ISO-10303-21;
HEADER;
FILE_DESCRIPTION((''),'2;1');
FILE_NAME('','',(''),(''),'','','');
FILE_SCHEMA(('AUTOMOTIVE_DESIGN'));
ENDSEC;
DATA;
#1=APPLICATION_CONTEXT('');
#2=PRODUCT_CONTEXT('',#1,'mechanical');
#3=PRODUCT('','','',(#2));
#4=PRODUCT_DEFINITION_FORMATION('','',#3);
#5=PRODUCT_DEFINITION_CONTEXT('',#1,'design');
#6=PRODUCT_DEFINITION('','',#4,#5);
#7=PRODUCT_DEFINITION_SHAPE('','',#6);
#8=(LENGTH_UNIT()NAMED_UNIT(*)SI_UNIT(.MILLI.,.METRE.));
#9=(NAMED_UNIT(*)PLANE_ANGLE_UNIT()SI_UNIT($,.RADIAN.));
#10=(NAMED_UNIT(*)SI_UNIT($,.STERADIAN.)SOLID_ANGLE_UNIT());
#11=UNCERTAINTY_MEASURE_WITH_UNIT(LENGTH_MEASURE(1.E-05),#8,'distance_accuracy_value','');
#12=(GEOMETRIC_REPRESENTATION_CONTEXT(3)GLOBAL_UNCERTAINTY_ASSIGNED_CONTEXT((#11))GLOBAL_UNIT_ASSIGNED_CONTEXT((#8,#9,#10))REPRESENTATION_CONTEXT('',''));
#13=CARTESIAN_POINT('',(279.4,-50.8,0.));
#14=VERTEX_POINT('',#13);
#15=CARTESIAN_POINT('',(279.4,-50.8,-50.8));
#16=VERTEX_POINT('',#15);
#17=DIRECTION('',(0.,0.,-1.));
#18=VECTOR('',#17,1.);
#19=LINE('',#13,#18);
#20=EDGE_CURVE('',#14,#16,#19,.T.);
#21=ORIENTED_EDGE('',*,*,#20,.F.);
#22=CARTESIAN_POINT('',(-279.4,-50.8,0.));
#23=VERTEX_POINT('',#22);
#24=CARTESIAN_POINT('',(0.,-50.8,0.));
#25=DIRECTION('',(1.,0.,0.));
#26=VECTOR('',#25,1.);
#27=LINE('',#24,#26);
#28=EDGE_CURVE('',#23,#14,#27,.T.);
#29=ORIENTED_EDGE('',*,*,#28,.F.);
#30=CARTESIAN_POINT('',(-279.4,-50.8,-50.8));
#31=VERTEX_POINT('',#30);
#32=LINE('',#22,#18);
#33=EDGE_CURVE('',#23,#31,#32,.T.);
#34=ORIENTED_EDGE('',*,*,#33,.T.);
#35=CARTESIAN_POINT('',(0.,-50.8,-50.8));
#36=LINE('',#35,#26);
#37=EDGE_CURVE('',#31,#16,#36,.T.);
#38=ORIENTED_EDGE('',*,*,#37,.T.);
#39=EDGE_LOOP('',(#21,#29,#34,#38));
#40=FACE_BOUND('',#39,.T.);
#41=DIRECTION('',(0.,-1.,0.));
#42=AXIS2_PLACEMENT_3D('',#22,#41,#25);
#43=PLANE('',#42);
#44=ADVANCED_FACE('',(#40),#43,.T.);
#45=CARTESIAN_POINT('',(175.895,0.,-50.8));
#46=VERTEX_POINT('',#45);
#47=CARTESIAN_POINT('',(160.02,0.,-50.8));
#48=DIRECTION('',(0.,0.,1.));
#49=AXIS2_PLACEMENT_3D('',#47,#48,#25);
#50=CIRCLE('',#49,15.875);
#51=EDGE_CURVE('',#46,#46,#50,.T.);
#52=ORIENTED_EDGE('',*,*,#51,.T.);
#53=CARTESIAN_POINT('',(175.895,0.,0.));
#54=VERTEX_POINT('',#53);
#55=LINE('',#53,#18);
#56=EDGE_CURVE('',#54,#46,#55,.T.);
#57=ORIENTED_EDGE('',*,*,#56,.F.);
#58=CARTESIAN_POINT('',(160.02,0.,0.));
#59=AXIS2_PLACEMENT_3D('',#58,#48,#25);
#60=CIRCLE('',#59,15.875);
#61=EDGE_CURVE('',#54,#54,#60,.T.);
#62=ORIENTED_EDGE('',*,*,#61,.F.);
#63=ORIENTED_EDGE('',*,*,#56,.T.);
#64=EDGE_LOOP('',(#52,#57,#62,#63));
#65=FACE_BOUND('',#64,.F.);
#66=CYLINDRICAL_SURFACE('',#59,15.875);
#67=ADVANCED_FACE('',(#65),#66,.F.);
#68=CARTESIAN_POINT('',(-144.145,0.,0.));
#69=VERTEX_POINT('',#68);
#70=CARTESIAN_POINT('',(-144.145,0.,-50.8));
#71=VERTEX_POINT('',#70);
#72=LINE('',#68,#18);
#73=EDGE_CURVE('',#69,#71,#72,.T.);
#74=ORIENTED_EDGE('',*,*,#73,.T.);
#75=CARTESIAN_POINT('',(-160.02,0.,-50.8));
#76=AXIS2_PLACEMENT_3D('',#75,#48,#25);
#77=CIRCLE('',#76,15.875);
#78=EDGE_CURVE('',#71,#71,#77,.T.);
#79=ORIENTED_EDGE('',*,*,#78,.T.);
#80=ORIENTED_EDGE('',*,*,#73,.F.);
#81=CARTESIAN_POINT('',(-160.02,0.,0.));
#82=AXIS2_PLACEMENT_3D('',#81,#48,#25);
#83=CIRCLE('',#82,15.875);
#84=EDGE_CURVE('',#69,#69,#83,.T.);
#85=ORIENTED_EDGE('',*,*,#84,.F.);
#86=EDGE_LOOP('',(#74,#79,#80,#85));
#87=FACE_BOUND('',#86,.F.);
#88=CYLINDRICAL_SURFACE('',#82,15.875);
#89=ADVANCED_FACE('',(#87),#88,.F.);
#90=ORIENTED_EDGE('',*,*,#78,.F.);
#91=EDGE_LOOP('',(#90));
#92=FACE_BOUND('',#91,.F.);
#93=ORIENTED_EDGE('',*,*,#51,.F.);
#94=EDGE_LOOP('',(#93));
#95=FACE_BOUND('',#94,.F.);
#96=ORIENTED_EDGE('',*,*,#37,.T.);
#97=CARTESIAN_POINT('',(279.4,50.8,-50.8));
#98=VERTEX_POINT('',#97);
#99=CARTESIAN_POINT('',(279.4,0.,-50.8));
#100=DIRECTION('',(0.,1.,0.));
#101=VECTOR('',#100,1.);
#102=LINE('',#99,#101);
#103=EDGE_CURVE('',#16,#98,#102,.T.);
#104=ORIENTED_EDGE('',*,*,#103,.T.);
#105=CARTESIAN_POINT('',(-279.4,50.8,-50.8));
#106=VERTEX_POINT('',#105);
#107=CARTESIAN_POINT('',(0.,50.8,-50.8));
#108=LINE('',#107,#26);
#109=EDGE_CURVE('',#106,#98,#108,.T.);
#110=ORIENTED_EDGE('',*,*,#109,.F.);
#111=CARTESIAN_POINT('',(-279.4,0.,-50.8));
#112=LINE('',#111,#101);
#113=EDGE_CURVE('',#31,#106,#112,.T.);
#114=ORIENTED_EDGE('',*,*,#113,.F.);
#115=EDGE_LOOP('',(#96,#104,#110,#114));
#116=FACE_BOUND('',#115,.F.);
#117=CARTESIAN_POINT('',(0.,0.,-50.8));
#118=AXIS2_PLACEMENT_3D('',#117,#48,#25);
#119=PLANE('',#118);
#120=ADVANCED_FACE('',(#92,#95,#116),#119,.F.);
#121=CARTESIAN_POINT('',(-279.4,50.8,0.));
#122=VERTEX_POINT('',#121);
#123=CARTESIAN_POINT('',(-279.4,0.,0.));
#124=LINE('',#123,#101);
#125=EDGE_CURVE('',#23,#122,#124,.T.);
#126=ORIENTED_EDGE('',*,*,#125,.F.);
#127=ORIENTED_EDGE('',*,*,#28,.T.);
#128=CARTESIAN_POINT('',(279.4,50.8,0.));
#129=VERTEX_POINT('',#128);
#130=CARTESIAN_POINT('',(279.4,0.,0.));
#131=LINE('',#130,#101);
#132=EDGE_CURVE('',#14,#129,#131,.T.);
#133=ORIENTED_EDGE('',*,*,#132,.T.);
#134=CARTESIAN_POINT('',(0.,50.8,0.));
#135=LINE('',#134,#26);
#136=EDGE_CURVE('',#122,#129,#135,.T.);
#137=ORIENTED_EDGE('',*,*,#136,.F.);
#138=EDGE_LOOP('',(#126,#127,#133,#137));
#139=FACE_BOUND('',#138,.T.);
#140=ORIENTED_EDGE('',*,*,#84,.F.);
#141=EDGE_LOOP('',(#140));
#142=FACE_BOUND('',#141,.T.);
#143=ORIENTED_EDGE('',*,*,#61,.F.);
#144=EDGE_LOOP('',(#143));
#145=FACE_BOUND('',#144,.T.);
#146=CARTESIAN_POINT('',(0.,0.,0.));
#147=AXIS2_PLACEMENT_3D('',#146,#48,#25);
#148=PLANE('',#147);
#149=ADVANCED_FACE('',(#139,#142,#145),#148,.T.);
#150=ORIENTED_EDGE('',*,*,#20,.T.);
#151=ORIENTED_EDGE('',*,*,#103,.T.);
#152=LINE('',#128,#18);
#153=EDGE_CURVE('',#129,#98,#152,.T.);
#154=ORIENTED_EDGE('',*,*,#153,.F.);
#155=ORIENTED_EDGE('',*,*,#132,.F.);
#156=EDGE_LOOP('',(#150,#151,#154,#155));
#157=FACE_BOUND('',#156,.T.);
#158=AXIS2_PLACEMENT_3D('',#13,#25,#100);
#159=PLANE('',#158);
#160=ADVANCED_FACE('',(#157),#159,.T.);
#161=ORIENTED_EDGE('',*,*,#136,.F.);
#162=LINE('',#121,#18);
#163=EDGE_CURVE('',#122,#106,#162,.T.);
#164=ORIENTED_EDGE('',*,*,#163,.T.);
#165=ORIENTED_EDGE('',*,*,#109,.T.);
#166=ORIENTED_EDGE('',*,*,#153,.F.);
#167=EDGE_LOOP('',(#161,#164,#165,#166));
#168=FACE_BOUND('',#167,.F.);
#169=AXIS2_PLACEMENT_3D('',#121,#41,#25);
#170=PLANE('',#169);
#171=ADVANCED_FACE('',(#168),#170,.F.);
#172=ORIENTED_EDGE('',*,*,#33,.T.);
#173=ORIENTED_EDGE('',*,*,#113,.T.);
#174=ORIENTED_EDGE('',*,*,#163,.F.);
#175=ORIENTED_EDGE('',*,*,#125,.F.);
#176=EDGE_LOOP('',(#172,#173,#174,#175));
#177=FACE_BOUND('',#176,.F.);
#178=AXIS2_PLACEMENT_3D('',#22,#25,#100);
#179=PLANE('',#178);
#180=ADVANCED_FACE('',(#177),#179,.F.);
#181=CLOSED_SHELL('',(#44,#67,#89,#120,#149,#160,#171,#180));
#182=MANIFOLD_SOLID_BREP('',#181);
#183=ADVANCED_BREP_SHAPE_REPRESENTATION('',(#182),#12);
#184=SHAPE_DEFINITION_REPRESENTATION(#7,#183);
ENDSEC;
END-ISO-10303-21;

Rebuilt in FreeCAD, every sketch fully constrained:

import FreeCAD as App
import Part
import Sketcher
from FreeCAD import Vector
Q = App.Units.Quantity

doc = App.newDocument("Part")
params = doc.addObject("Spreadsheet::Sheet", "Params")
for row, (alias, value) in enumerate([
    ("sketch1_width", "22 in"),
    ("sketch1_height", "4 in"),
    ("pad1_length", "2 in"),
    ("sketch2_diameter", "1.25 in"),
], start=1):
    params.set(f"A{row}", alias)
    params.set(f"B{row}", "=" + value)
    params.setAlias(f"B{row}", alias)

body = doc.addObject("PartDesign::Body", "Body")

# Sketch on XY plane
sketch1 = body.newObject("Sketcher::SketchObject", "Sketch")
sketch1.AttachmentSupport = (doc.getObject("XY_Plane"), [""])
sketch1.MapMode = "FlatFace"
sketch1.addGeometry([
    Part.LineSegment(Vector(-279, 51, 0), Vector(-279, -51, 0)),
    Part.LineSegment(Vector(-279, -51, 0), Vector(279, -51, 0)),
    Part.LineSegment(Vector(279, -51, 0), Vector(279, 51, 0)),
    Part.LineSegment(Vector(279, 51, 0), Vector(-279, 51, 0)),
], False)
sketch1.addConstraint([
    Sketcher.Constraint("Coincident", 0, 2, 1, 1),
    Sketcher.Constraint("Coincident", 1, 2, 2, 1),
    Sketcher.Constraint("Coincident", 2, 2, 3, 1),
    Sketcher.Constraint("Coincident", 3, 2, 0, 1),
    Sketcher.Constraint("Vertical", 0),
    Sketcher.Constraint("Horizontal", 1),
    Sketcher.Constraint("Vertical", 2),
    Sketcher.Constraint("Horizontal", 3),
    Sketcher.Constraint("Symmetric", 0, 2, 2, 2, -1, 1),
    Sketcher.Constraint("DistanceX", 1, 1, 1, 2, Q("22 in")),
    Sketcher.Constraint("DistanceY", 0, 2, 0, 1, Q("4 in")),
])
sketch1.setExpression("Constraints[9]", "Params.sketch1_width")
sketch1.setExpression("Constraints[10]", "Params.sketch1_height")
pad1 = body.newObject("PartDesign::Pad", "Pad")
pad1.Profile = sketch1
pad1.setExpression("Length", "Params.pad1_length")
pad1.Reversed = True

# Sketch on XY plane
sketch2 = body.newObject("Sketcher::SketchObject", "Sketch001")
sketch2.AttachmentSupport = (doc.getObject("XY_Plane"), [""])
sketch2.MapMode = "FlatFace"
sketch2.addGeometry([
    Part.Circle(Vector(-160, 0, 0), Vector(0, 0, 1), 16),
    Part.Circle(Vector(160, 0, 0), Vector(0, 0, 1), 16),
], False)
sketch2.addConstraint([
    Sketcher.Constraint("Equal", 0, 1),
    Sketcher.Constraint("Symmetric", 0, 3, 1, 3, -1, 1),
    Sketcher.Constraint("PointOnObject", 0, 3, -1),
    Sketcher.Constraint("Diameter", 0, Q("1.25 in")),
    Sketcher.Constraint("DistanceX", 0, 3, -1, 1, Q("6.3 in")),
])
sketch2.setExpression("Constraints[3]", "Params.sketch2_diameter")
pocket1 = body.newObject("PartDesign::Pocket", "Pocket")
pocket1.Profile = sketch2
pocket1.Type = "ThroughAll"

doc.recompute()
